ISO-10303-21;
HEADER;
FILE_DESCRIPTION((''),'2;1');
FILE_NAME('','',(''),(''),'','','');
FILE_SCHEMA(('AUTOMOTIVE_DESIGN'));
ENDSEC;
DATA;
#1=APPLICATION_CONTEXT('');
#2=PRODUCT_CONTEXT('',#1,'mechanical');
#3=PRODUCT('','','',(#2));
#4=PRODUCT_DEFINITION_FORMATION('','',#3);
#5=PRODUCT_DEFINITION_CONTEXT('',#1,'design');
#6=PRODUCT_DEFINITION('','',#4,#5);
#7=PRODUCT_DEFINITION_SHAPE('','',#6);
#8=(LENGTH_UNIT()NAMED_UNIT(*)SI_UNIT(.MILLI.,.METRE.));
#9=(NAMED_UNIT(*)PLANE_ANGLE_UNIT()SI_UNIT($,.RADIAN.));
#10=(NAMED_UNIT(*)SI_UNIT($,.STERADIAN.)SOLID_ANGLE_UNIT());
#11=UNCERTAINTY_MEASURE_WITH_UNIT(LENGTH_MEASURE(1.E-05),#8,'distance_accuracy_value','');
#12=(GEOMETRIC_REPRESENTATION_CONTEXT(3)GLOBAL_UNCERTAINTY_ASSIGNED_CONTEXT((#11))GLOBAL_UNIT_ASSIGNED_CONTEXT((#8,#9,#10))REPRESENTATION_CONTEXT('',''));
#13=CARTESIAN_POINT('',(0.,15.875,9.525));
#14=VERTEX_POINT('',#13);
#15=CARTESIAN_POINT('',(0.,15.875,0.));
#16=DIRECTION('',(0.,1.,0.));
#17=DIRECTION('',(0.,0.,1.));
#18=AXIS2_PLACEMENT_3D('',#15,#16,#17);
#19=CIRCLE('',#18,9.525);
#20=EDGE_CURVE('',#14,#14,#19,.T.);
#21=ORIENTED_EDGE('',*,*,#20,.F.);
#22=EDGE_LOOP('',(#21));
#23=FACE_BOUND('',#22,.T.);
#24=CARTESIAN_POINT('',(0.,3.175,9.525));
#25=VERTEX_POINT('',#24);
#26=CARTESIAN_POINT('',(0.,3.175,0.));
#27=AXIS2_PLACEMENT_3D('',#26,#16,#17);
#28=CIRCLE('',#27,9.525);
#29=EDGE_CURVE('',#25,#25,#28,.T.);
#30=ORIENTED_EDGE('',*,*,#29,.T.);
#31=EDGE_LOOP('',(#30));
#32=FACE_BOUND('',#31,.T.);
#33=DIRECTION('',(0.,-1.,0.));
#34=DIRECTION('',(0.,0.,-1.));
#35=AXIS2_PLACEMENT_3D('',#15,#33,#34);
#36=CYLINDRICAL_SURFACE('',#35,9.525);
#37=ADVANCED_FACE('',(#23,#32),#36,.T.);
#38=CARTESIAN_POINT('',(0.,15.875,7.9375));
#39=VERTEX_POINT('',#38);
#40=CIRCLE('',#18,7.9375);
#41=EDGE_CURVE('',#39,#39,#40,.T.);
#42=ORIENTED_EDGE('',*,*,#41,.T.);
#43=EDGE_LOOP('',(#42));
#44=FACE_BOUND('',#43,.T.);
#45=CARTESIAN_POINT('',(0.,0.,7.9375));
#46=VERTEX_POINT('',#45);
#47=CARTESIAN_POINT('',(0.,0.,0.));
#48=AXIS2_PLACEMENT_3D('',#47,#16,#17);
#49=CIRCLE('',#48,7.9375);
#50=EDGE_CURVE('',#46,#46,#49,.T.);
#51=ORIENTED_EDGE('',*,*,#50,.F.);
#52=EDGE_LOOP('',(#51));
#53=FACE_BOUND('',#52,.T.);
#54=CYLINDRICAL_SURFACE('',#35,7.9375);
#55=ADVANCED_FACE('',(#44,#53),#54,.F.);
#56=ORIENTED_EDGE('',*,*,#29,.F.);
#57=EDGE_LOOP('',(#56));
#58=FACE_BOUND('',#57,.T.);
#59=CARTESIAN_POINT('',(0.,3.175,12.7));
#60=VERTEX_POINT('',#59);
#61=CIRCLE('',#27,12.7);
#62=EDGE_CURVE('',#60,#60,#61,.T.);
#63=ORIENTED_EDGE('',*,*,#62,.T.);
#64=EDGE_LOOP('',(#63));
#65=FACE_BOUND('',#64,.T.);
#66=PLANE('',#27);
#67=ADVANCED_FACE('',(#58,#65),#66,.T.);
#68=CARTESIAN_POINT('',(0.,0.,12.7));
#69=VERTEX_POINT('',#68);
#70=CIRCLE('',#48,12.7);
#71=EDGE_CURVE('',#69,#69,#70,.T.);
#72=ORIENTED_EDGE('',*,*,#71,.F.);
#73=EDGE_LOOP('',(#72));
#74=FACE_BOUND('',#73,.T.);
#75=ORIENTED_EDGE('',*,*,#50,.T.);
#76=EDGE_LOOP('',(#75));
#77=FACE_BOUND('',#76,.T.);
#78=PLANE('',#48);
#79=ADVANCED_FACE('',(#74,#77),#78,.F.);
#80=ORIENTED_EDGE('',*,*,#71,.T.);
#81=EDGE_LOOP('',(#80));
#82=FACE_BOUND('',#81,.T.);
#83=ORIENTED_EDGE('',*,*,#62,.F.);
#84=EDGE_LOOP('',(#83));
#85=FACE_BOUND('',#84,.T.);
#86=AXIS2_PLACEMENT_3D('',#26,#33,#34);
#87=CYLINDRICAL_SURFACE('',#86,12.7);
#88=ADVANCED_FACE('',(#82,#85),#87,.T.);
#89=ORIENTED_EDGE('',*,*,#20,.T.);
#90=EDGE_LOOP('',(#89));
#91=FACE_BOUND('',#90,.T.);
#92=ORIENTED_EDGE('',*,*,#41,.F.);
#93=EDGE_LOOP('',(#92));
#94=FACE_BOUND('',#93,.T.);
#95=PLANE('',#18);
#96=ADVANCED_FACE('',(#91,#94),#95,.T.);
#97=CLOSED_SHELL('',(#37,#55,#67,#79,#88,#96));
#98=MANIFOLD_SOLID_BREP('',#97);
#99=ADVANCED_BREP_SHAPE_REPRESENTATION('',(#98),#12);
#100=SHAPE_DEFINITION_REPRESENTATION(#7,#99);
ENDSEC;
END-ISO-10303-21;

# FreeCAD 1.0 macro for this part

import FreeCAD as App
import Part
import Sketcher
from FreeCAD import Vector
Q = App.Units.Quantity

doc = App.newDocument("Part")
body = doc.addObject("PartDesign::Body", "Body")

sketch1 = body.newObject("Sketcher::SketchObject", "Sketch")
sketch1.AttachmentSupport = (doc.getObject("XZ_Plane"), [""])
sketch1.MapMode = "FlatFace"
sketch1.addGeometry([
    Part.Circle(Vector(0, 0, 0), Vector(0, 0, 1), 10),
    Part.Circle(Vector(0, 0, 0), Vector(0, 0, 1), 8),
], False)
sketch1.addConstraint([
    Sketcher.Constraint("Coincident", 0, 3, -1, 1),
    Sketcher.Constraint("Coincident", 1, 3, -1, 1),
    Sketcher.Constraint("Diameter", 0, Q("0.75 in")),
    Sketcher.Constraint("Diameter", 1, Q("0.625 in")),
])
pad1 = body.newObject("PartDesign::Pad", "Pad")
pad1.Profile = sketch1
pad1.Length = Q("0.625 in")
pad1.Reversed = True

sketch2 = body.newObject("Sketcher::SketchObject", "Sketch001")
sketch2.AttachmentSupport = (doc.getObject("XZ_Plane"), [""])
sketch2.MapMode = "FlatFace"
sketch2.addGeometry([
    Part.Circle(Vector(0, 0, 0), Vector(0, 0, 1), 13),
    Part.Circle(Vector(0, 0, 0), Vector(0, 0, 1), 10),
], False)
sketch2.addConstraint([
    Sketcher.Constraint("Coincident", 0, 3, -1, 1),
    Sketcher.Constraint("Coincident", 1, 3, -1, 1),
    Sketcher.Constraint("Diameter", 0, Q("1 in")),
    Sketcher.Constraint("Diameter", 1, Q("0.75 in")),
])
pad2 = body.newObject("PartDesign::Pad", "Pad001")
pad2.Profile = sketch2
pad2.Length = Q("0.125 in")
pad2.Reversed = True

doc.recompute()
